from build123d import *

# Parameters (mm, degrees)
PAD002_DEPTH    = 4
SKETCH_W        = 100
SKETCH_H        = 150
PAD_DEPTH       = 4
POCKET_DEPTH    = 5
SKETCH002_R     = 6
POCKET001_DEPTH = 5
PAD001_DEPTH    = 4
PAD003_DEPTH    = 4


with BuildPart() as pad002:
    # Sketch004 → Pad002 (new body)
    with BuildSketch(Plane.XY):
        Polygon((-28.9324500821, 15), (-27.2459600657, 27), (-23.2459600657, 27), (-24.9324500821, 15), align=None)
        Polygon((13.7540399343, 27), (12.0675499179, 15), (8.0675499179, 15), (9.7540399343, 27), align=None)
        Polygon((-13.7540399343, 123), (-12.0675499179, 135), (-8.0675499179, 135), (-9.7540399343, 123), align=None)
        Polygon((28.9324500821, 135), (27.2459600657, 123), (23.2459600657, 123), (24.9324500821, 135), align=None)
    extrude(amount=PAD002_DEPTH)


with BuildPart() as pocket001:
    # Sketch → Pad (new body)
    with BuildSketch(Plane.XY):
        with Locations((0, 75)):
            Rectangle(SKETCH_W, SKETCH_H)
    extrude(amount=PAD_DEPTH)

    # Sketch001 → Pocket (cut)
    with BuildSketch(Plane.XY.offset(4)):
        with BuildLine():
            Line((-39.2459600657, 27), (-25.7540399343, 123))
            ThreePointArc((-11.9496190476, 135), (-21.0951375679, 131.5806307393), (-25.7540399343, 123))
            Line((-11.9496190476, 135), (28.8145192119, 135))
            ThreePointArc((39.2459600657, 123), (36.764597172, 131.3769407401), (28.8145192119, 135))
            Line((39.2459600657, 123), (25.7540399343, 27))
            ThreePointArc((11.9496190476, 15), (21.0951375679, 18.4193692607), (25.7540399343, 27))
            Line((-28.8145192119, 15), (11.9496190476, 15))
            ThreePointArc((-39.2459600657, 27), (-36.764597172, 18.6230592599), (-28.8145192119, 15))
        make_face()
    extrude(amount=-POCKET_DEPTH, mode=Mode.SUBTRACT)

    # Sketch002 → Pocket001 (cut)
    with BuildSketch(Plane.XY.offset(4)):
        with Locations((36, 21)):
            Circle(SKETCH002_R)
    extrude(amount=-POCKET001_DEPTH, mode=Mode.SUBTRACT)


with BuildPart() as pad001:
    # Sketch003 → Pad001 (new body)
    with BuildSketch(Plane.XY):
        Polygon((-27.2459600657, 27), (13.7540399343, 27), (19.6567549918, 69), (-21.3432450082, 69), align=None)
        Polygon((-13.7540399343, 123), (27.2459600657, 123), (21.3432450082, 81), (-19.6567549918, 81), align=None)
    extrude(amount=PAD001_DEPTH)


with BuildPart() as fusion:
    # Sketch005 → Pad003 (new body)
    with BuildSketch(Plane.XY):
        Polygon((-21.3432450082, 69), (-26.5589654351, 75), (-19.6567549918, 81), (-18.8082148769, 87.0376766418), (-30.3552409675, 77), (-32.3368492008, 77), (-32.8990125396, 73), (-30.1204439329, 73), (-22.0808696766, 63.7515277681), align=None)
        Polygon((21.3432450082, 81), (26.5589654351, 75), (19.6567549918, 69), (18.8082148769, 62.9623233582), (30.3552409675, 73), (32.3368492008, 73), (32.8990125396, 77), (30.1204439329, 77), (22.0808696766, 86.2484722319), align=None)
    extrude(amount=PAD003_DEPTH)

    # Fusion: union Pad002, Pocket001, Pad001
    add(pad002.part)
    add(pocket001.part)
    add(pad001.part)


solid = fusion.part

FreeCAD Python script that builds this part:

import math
import FreeCAD as App
import Part
import Sketcher
Q = App.Units.Quantity


def add_polygon(sketch, points):
    """Adds a closed chain of lines whose ends are joined by coincident constraints."""
    first, n = sketch.GeometryCount, len(points)
    for a, b in zip(points, points[1:] + points[:1]):
        sketch.addGeometry(Part.LineSegment(App.Vector(*a, 0), App.Vector(*b, 0)), False)
    for i in range(n):
        sketch.addConstraint(Sketcher.Constraint("Coincident", first + i, 2, first + (i + 1) % n, 1))

doc = App.newDocument("Part")
body = doc.addObject("PartDesign::Body", "Body")
body.AllowCompound = True

sketch1 = doc.addObject("Sketcher::SketchObject", "Sketch")
body.addObject(sketch1)
sketch1.AttachmentSupport = (doc.XY_Plane, [""])
sketch1.MapMode = "FlatFace"
add_polygon(sketch1, [(-27.2, 27), (-28.9, 15), (-24.9, 15), (-23.2, 27)])
add_polygon(sketch1, [(12.1, 15), (13.8, 27), (9.8, 27), (8.1, 15)])
add_polygon(sketch1, [(-12.1, 135), (-13.8, 123), (-9.8, 123), (-8.1, 135)])
add_polygon(sketch1, [(27.2, 123), (28.9, 135), (24.9, 135), (23.2, 123)])
sketch1.addConstraint(Sketcher.Constraint("Horizontal", 1))
sketch1.addConstraint(Sketcher.Constraint("Horizontal", 3))
sketch1.addConstraint(Sketcher.Constraint("Horizontal", 5))
sketch1.addConstraint(Sketcher.Constraint("Horizontal", 7))
sketch1.addConstraint(Sketcher.Constraint("Horizontal", 9))
sketch1.addConstraint(Sketcher.Constraint("Horizontal", 11))
sketch1.addConstraint(Sketcher.Constraint("Horizontal", 13))
sketch1.addConstraint(Sketcher.Constraint("Horizontal", 15))
sketch1.addConstraint(Sketcher.Constraint("Parallel", 0, 2))
sketch1.addConstraint(Sketcher.Constraint("Parallel", 2, 4))
sketch1.addConstraint(Sketcher.Constraint("Parallel", 4, 6))
sketch1.addConstraint(Sketcher.Constraint("Parallel", 6, 8))
sketch1.addConstraint(Sketcher.Constraint("Parallel", 8, 10))
sketch1.addConstraint(Sketcher.Constraint("Parallel", 10, 12))
sketch1.addConstraint(Sketcher.Constraint("Parallel", 12, 14))
sketch1.addConstraint(Sketcher.Constraint("Horizontal", 3, 2, 4, 2))
sketch1.addConstraint(Sketcher.Constraint("Horizontal", 1, 2, 6, 2))
sketch1.addConstraint(Sketcher.Constraint("Horizontal", 11, 2, 12, 2))
sketch1.addConstraint(Sketcher.Constraint("Horizontal", 9, 2, 14, 2))
sketch1.addConstraint(Sketcher.Constraint("Equal", 3, 5))
sketch1.addConstraint(Sketcher.Constraint("Equal", 7, 9))
sketch1.addConstraint(Sketcher.Constraint("Equal", 11, 13))
sketch1.addConstraint(Sketcher.Constraint("Equal", 6, 8))
sketch1.addConstraint(Sketcher.Constraint("DistanceX", 1, 1, 1, 2, Q("4 mm")))
sketch1.addConstraint(Sketcher.Constraint("Angle", 0, Q("-98 deg")))
sketch1.addConstraint(Sketcher.Constraint("DistanceY", -1, 1, 0, 2, Q("15 mm")))
sketch1.addConstraint(Sketcher.Constraint("DistanceY", -1, 1, 2, 2, Q("27 mm")))
sketch1.addConstraint(Sketcher.Constraint("DistanceY", -1, 1, 8, 2, Q("123 mm")))
sketch1.addConstraint(Sketcher.Constraint("DistanceX", 2, 2, 4, 2, Q("37 mm")))
sketch1.addConstraint(Sketcher.Constraint("DistanceX", 10, 2, 12, 2, Q("37 mm")))
sketch1.addConstraint(Sketcher.Constraint("DistanceX", 0, 2, -1, 1, Q("28.93245 mm")))
sketch1.addConstraint(Sketcher.Constraint("DistanceX", 8, 2, -1, 1, Q("13.75404 mm")))
pad1 = doc.addObject("PartDesign::Pad", "Pad")
body.addObject(pad1)
pad1.Profile = sketch1
pad1.Length = 4
body2 = doc.addObject("PartDesign::Body", "Body001")

sketch2 = doc.addObject("Sketcher::SketchObject", "Sketch001")
body2.addObject(sketch2)
sketch2.AttachmentSupport = (doc.getObject("XY_Plane001"), [""])
sketch2.MapMode = "FlatFace"
add_polygon(sketch2, [(-50, 150), (-50, 0), (50, 0), (50, 150)])
sketch2.addConstraint(Sketcher.Constraint("Vertical", 0))
sketch2.addConstraint(Sketcher.Constraint("Horizontal", 1))
sketch2.addConstraint(Sketcher.Constraint("Vertical", 2))
sketch2.addConstraint(Sketcher.Constraint("Horizontal", 3))
sketch2.addConstraint(Sketcher.Constraint("Symmetric", 0, 2, 1, 2, -1, 1))
sketch2.addConstraint(Sketcher.Constraint("DistanceX", 1, 1, 1, 2, Q("100 mm")))
sketch2.addConstraint(Sketcher.Constraint("DistanceY", 0, 2, 0, 1, Q("150 mm")))
pad2 = doc.addObject("PartDesign::Pad", "Pad001")
body2.addObject(pad2)
pad2.Profile = sketch2
pad2.Length = 4

sketch3 = doc.addObject("Sketcher::SketchObject", "Sketch002")
body2.addObject(sketch3)
sketch3.AttachmentSupport = (doc.getObject("XY_Plane001"), [""])
sketch3.MapMode = "FlatFace"
sketch3.AttachmentOffset = App.Placement(App.Vector(0, 0, 4), App.Rotation())
sketch3.addGeometry(Part.LineSegment(App.Vector(-26, 123, 0), App.Vector(-39, 27, 0)), False)
sketch3.addGeometry(Part.ArcOfCircle(Part.Circle(App.Vector(-29, 26, 0), App.Vector(0, 0, 1), 11), math.radians(172), math.radians(270)), False)
sketch3.addGeometry(Part.LineSegment(App.Vector(-29, 15, 0), App.Vector(12, 15, 0)), False)
sketch3.addGeometry(Part.ArcOfCircle(Part.Circle(App.Vector(12, 29, 0), App.Vector(0, 0, 1), 14), math.radians(-90), math.radians(-8)), False)
sketch3.addGeometry(Part.LineSegment(App.Vector(26, 27, 0), App.Vector(39, 123, 0)), False)
sketch3.addGeometry(Part.ArcOfCircle(Part.Circle(App.Vector(29, 124, 0), App.Vector(0, 0, 1), 11), math.radians(-8), math.radians(90)), False)
sketch3.addGeometry(Part.LineSegment(App.Vector(29, 135, 0), App.Vector(-12, 135, 0)), False)
sketch3.addGeometry(Part.ArcOfCircle(Part.Circle(App.Vector(-12, 121, 0), App.Vector(0, 0, 1), 14), math.radians(90), math.radians(172)), False)
sketch3.addConstraint(Sketcher.Constraint("Tangent", 0, 2, 1, 1))
sketch3.addConstraint(Sketcher.Constraint("Tangent", 1, 2, 2, 1))
sketch3.addConstraint(Sketcher.Constraint("Tangent", 2, 2, 3, 1))
sketch3.addConstraint(Sketcher.Constraint("Tangent", 3, 2, 4, 1))
sketch3.addConstraint(Sketcher.Constraint("Tangent", 4, 2, 5, 1))
sketch3.addConstraint(Sketcher.Constraint("Tangent", 5, 2, 6, 1))
sketch3.addConstraint(Sketcher.Constraint("Tangent", 6, 2, 7, 1))
sketch3.addConstraint(Sketcher.Constraint("Tangent", 7, 2, 0, 1))
sketch3.addConstraint(Sketcher.Constraint("Horizontal", 2))
sketch3.addConstraint(Sketcher.Constraint("Horizontal", 6))
sketch3.addConstraint(Sketcher.Constraint("Equal", 1, 5))
sketch3.addConstraint(Sketcher.Constraint("Equal", 3, 7))
sketch3.addConstraint(Sketcher.Constraint("Parallel", 0, 4))
sketch3.addConstraint(Sketcher.Constraint("Horizontal", 0, 2, 3, 2))
sketch3.addConstraint(Sketcher.Constraint("Angle", 0, Q("-98 deg")))
sketch3.addConstraint(Sketcher.Constraint("DistanceY", -1, 1, 0, 2, Q("27 mm")))
sketch3.addConstraint(Sketcher.Constraint("DistanceY", -1, 1, 1, 2, Q("15 mm")))
sketch3.addConstraint(Sketcher.Constraint("DistanceY", -1, 1, 4, 2, Q("123 mm")))
sketch3.addConstraint(Sketcher.Constraint("DistanceX", 0, 2, 3, 2, Q("65 mm")))
sketch3.addConstraint(Sketcher.Constraint("DistanceX", 1, 3, -1, 1, Q("28.814519 mm")))
pocket1 = doc.addObject("PartDesign::Pocket", "Pocket")
body2.addObject(pocket1)
pocket1.Profile = sketch3
pocket1.Length = 5

sketch4 = doc.addObject("Sketcher::SketchObject", "Sketch003")
body2.addObject(sketch4)
sketch4.AttachmentSupport = (doc.getObject("XY_Plane001"), [""])
sketch4.MapMode = "FlatFace"
sketch4.AttachmentOffset = App.Placement(App.Vector(0, 0, 4), App.Rotation())
sketch4.addGeometry(Part.Circle(App.Vector(36, 21, 0), App.Vector(0, 0, 1), 6), False)
sketch4.addConstraint(Sketcher.Constraint("Diameter", 0, Q("12 mm")))
sketch4.addConstraint(Sketcher.Constraint("DistanceX", -1, 1, 0, 3, Q("36 mm")))
sketch4.addConstraint(Sketcher.Constraint("DistanceY", -1, 1, 0, 3, Q("21 mm")))
pocket2 = doc.addObject("PartDesign::Pocket", "Pocket001")
body2.addObject(pocket2)
pocket2.Profile = sketch4
pocket2.Length = 5
body3 = doc.addObject("PartDesign::Body", "Body002")
body3.AllowCompound = True

sketch5 = doc.addObject("Sketcher::SketchObject", "Sketch004")
body3.addObject(sketch5)
sketch5.AttachmentSupport = (doc.getObject("XY_Plane002"), [""])
sketch5.MapMode = "FlatFace"
add_polygon(sketch5, [(-27, 27), (14, 27), (20, 69), (-21, 69)])
add_polygon(sketch5, [(27, 123), (-14, 123), (-20, 81), (21, 81)])
sketch5.addConstraint(Sketcher.Constraint("Horizontal", 0))
sketch5.addConstraint(Sketcher.Constraint("Horizontal", 2))
sketch5.addConstraint(Sketcher.Constraint("Horizontal", 4))
sketch5.addConstraint(Sketcher.Constraint("Horizontal", 6))
sketch5.addConstraint(Sketcher.Constraint("Parallel", 1, 3))
sketch5.addConstraint(Sketcher.Constraint("Parallel", 3, 5))
sketch5.addConstraint(Sketcher.Constraint("Parallel", 5, 7))
sketch5.addConstraint(Sketcher.Constraint("Equal", 2, 4))
sketch5.addConstraint(Sketcher.Constraint("Equal", 3, 5))
sketch5.addConstraint(Sketcher.Constraint("DistanceX", 0, 1, 0, 2, Q("41 mm")))
sketch5.addConstraint(Sketcher.Constraint("Angle", 1, Q("82 deg")))
sketch5.addConstraint(Sketcher.Constraint("DistanceY", -1, 1, 0, 2, Q("27 mm")))
sketch5.addConstraint(Sketcher.Constraint("DistanceY", -1, 1, 1, 2, Q("69 mm")))
sketch5.addConstraint(Sketcher.Constraint("DistanceY", -1, 1, 4, 2, Q("123 mm")))
sketch5.addConstraint(Sketcher.Constraint("DistanceX", -1, 1, 0, 2, Q("13.75404 mm")))
sketch5.addConstraint(Sketcher.Constraint("DistanceX", 4, 2, -1, 1, Q("13.75404 mm")))
pad3 = doc.addObject("PartDesign::Pad", "Pad002")
body3.addObject(pad3)
pad3.Profile = sketch5
pad3.Length = 4
body4 = doc.addObject("PartDesign::Body", "Body003")
body4.AllowCompound = True

sketch6 = doc.addObject("Sketcher::SketchObject", "Sketch005")
body4.addObject(sketch6)
sketch6.AttachmentSupport = (doc.getObject("XY_Plane003"), [""])
sketch6.MapMode = "FlatFace"
add_polygon(sketch6, [(-21.3, 69), (-26.6, 75), (-19.7, 81), (-18.8, 87), (-30.4, 77), (-32.3, 77), (-32.9, 73), (-30.1, 73), (-22.1, 63.8)])
add_polygon(sketch6, [(21.3, 81), (26.6, 75), (19.7, 69), (18.8, 63), (30.4, 73), (32.3, 73), (32.9, 77), (30.1, 77), (22.1, 86.2)])
sketch6.addConstraint(Sketcher.Constraint("Horizontal", 4))
sketch6.addConstraint(Sketcher.Constraint("Horizontal", 6))
sketch6.addConstraint(Sketcher.Constraint("Horizontal", 13))
sketch6.addConstraint(Sketcher.Constraint("Horizontal", 15))
sketch6.addConstraint(Sketcher.Constraint("Symmetric", 0, 2, 9, 2, -2))
sketch6.addConstraint(Sketcher.Constraint("Perpendicular", 0, 1))
sketch6.addConstraint(Sketcher.Constraint("Parallel", 1, 3))
sketch6.addConstraint(Sketcher.Constraint("Parallel", 2, 5))
sketch6.addConstraint(Sketcher.Constraint("Perpendicular", 3, 7))
sketch6.addConstraint(Sketcher.Constraint("Parallel", 5, 8))
sketch6.addConstraint(Sketcher.Constraint("Parallel", 7, 9))
sketch6.addConstraint(Sketcher.Constraint("Perpendicular", 9, 10))
sketch6.addConstraint(Sketcher.Constraint("Parallel", 8, 11))
sketch6.addConstraint(Sketcher.Constraint("Parallel", 10, 12))
sketch6.addConstraint(Sketcher.Constraint("Parallel", 11, 14))
sketch6.addConstraint(Sketcher.Constraint("Perpendicular", 12, 16))
sketch6.addConstraint(Sketcher.Constraint("Parallel", 14, 17))
sketch6.addConstraint(Sketcher.Constraint("Horizontal", 8, 2, 10, 2))
sketch6.addConstraint(Sketcher.Constraint("Horizontal", 6, 2, 12, 2))
sketch6.addConstraint(Sketcher.Constraint("Horizontal", 4, 2, 14, 2))
sketch6.addConstraint(Sketcher.Constraint("Horizontal", 1, 2, 17, 2))
sketch6.addConstraint(Sketcher.Constraint("Equal", 4, 13))
sketch6.addConstraint(Sketcher.Constraint("Equal", 6, 15))
sketch6.addConstraint(Sketcher.Constraint("Equal", 0, 9))
sketch6.addConstraint(Sketcher.Constraint("Equal", 2, 11))
sketch6.addConstraint(Sketcher.Constraint("Equal", 3, 12))
sketch6.addConstraint(Sketcher.Constraint("Angle", 0, Q("131 deg")))
sketch6.addConstraint(Sketcher.Constraint("Angle", 2, Q("82 deg")))
sketch6.addConstraint(Sketcher.Constraint("DistanceY", -1, 1, 0, 2, Q("75 mm")))
sketch6.addConstraint(Sketcher.Constraint("DistanceY", -1, 1, 1, 2, Q("81 mm")))
sketch6.addConstraint(Sketcher.Constraint("DistanceY", -1, 1, 3, 2, Q("77 mm")))
sketch6.addConstraint(Sketcher.Constraint("DistanceX", 8, 2, 10, 2, Q("41 mm")))
sketch6.addConstraint(Sketcher.Constraint("DistanceX", 4, 2, 4, 1, Q("1.981608 mm")))
sketch6.addConstraint(Sketcher.Constraint("DistanceX", 6, 1, 6, 2, Q("2.778569 mm")))
sketch6.addConstraint(Sketcher.Constraint("DistanceX", 6, 2, 8, 2, Q("8.777199 mm")))
pad4 = doc.addObject("PartDesign::Pad", "Pad003")
body4.addObject(pad4)
pad4.Profile = sketch6
pad4.Length = 4
doc.recompute()

boolean = doc.addObject("PartDesign::Boolean", "Boolean")
body4.addObject(boolean)
boolean.Type = "Fuse"
boolean.addObjects([body])
doc.recompute()

boolean2 = doc.addObject("PartDesign::Boolean", "Boolean001")
body4.addObject(boolean2)
boolean2.Type = "Fuse"
boolean2.addObjects([body2])
doc.recompute()

boolean3 = doc.addObject("PartDesign::Boolean", "Boolean002")
body4.addObject(boolean3)
boolean3.Type = "Fuse"
boolean3.addObjects([body3])

doc.recompute()
